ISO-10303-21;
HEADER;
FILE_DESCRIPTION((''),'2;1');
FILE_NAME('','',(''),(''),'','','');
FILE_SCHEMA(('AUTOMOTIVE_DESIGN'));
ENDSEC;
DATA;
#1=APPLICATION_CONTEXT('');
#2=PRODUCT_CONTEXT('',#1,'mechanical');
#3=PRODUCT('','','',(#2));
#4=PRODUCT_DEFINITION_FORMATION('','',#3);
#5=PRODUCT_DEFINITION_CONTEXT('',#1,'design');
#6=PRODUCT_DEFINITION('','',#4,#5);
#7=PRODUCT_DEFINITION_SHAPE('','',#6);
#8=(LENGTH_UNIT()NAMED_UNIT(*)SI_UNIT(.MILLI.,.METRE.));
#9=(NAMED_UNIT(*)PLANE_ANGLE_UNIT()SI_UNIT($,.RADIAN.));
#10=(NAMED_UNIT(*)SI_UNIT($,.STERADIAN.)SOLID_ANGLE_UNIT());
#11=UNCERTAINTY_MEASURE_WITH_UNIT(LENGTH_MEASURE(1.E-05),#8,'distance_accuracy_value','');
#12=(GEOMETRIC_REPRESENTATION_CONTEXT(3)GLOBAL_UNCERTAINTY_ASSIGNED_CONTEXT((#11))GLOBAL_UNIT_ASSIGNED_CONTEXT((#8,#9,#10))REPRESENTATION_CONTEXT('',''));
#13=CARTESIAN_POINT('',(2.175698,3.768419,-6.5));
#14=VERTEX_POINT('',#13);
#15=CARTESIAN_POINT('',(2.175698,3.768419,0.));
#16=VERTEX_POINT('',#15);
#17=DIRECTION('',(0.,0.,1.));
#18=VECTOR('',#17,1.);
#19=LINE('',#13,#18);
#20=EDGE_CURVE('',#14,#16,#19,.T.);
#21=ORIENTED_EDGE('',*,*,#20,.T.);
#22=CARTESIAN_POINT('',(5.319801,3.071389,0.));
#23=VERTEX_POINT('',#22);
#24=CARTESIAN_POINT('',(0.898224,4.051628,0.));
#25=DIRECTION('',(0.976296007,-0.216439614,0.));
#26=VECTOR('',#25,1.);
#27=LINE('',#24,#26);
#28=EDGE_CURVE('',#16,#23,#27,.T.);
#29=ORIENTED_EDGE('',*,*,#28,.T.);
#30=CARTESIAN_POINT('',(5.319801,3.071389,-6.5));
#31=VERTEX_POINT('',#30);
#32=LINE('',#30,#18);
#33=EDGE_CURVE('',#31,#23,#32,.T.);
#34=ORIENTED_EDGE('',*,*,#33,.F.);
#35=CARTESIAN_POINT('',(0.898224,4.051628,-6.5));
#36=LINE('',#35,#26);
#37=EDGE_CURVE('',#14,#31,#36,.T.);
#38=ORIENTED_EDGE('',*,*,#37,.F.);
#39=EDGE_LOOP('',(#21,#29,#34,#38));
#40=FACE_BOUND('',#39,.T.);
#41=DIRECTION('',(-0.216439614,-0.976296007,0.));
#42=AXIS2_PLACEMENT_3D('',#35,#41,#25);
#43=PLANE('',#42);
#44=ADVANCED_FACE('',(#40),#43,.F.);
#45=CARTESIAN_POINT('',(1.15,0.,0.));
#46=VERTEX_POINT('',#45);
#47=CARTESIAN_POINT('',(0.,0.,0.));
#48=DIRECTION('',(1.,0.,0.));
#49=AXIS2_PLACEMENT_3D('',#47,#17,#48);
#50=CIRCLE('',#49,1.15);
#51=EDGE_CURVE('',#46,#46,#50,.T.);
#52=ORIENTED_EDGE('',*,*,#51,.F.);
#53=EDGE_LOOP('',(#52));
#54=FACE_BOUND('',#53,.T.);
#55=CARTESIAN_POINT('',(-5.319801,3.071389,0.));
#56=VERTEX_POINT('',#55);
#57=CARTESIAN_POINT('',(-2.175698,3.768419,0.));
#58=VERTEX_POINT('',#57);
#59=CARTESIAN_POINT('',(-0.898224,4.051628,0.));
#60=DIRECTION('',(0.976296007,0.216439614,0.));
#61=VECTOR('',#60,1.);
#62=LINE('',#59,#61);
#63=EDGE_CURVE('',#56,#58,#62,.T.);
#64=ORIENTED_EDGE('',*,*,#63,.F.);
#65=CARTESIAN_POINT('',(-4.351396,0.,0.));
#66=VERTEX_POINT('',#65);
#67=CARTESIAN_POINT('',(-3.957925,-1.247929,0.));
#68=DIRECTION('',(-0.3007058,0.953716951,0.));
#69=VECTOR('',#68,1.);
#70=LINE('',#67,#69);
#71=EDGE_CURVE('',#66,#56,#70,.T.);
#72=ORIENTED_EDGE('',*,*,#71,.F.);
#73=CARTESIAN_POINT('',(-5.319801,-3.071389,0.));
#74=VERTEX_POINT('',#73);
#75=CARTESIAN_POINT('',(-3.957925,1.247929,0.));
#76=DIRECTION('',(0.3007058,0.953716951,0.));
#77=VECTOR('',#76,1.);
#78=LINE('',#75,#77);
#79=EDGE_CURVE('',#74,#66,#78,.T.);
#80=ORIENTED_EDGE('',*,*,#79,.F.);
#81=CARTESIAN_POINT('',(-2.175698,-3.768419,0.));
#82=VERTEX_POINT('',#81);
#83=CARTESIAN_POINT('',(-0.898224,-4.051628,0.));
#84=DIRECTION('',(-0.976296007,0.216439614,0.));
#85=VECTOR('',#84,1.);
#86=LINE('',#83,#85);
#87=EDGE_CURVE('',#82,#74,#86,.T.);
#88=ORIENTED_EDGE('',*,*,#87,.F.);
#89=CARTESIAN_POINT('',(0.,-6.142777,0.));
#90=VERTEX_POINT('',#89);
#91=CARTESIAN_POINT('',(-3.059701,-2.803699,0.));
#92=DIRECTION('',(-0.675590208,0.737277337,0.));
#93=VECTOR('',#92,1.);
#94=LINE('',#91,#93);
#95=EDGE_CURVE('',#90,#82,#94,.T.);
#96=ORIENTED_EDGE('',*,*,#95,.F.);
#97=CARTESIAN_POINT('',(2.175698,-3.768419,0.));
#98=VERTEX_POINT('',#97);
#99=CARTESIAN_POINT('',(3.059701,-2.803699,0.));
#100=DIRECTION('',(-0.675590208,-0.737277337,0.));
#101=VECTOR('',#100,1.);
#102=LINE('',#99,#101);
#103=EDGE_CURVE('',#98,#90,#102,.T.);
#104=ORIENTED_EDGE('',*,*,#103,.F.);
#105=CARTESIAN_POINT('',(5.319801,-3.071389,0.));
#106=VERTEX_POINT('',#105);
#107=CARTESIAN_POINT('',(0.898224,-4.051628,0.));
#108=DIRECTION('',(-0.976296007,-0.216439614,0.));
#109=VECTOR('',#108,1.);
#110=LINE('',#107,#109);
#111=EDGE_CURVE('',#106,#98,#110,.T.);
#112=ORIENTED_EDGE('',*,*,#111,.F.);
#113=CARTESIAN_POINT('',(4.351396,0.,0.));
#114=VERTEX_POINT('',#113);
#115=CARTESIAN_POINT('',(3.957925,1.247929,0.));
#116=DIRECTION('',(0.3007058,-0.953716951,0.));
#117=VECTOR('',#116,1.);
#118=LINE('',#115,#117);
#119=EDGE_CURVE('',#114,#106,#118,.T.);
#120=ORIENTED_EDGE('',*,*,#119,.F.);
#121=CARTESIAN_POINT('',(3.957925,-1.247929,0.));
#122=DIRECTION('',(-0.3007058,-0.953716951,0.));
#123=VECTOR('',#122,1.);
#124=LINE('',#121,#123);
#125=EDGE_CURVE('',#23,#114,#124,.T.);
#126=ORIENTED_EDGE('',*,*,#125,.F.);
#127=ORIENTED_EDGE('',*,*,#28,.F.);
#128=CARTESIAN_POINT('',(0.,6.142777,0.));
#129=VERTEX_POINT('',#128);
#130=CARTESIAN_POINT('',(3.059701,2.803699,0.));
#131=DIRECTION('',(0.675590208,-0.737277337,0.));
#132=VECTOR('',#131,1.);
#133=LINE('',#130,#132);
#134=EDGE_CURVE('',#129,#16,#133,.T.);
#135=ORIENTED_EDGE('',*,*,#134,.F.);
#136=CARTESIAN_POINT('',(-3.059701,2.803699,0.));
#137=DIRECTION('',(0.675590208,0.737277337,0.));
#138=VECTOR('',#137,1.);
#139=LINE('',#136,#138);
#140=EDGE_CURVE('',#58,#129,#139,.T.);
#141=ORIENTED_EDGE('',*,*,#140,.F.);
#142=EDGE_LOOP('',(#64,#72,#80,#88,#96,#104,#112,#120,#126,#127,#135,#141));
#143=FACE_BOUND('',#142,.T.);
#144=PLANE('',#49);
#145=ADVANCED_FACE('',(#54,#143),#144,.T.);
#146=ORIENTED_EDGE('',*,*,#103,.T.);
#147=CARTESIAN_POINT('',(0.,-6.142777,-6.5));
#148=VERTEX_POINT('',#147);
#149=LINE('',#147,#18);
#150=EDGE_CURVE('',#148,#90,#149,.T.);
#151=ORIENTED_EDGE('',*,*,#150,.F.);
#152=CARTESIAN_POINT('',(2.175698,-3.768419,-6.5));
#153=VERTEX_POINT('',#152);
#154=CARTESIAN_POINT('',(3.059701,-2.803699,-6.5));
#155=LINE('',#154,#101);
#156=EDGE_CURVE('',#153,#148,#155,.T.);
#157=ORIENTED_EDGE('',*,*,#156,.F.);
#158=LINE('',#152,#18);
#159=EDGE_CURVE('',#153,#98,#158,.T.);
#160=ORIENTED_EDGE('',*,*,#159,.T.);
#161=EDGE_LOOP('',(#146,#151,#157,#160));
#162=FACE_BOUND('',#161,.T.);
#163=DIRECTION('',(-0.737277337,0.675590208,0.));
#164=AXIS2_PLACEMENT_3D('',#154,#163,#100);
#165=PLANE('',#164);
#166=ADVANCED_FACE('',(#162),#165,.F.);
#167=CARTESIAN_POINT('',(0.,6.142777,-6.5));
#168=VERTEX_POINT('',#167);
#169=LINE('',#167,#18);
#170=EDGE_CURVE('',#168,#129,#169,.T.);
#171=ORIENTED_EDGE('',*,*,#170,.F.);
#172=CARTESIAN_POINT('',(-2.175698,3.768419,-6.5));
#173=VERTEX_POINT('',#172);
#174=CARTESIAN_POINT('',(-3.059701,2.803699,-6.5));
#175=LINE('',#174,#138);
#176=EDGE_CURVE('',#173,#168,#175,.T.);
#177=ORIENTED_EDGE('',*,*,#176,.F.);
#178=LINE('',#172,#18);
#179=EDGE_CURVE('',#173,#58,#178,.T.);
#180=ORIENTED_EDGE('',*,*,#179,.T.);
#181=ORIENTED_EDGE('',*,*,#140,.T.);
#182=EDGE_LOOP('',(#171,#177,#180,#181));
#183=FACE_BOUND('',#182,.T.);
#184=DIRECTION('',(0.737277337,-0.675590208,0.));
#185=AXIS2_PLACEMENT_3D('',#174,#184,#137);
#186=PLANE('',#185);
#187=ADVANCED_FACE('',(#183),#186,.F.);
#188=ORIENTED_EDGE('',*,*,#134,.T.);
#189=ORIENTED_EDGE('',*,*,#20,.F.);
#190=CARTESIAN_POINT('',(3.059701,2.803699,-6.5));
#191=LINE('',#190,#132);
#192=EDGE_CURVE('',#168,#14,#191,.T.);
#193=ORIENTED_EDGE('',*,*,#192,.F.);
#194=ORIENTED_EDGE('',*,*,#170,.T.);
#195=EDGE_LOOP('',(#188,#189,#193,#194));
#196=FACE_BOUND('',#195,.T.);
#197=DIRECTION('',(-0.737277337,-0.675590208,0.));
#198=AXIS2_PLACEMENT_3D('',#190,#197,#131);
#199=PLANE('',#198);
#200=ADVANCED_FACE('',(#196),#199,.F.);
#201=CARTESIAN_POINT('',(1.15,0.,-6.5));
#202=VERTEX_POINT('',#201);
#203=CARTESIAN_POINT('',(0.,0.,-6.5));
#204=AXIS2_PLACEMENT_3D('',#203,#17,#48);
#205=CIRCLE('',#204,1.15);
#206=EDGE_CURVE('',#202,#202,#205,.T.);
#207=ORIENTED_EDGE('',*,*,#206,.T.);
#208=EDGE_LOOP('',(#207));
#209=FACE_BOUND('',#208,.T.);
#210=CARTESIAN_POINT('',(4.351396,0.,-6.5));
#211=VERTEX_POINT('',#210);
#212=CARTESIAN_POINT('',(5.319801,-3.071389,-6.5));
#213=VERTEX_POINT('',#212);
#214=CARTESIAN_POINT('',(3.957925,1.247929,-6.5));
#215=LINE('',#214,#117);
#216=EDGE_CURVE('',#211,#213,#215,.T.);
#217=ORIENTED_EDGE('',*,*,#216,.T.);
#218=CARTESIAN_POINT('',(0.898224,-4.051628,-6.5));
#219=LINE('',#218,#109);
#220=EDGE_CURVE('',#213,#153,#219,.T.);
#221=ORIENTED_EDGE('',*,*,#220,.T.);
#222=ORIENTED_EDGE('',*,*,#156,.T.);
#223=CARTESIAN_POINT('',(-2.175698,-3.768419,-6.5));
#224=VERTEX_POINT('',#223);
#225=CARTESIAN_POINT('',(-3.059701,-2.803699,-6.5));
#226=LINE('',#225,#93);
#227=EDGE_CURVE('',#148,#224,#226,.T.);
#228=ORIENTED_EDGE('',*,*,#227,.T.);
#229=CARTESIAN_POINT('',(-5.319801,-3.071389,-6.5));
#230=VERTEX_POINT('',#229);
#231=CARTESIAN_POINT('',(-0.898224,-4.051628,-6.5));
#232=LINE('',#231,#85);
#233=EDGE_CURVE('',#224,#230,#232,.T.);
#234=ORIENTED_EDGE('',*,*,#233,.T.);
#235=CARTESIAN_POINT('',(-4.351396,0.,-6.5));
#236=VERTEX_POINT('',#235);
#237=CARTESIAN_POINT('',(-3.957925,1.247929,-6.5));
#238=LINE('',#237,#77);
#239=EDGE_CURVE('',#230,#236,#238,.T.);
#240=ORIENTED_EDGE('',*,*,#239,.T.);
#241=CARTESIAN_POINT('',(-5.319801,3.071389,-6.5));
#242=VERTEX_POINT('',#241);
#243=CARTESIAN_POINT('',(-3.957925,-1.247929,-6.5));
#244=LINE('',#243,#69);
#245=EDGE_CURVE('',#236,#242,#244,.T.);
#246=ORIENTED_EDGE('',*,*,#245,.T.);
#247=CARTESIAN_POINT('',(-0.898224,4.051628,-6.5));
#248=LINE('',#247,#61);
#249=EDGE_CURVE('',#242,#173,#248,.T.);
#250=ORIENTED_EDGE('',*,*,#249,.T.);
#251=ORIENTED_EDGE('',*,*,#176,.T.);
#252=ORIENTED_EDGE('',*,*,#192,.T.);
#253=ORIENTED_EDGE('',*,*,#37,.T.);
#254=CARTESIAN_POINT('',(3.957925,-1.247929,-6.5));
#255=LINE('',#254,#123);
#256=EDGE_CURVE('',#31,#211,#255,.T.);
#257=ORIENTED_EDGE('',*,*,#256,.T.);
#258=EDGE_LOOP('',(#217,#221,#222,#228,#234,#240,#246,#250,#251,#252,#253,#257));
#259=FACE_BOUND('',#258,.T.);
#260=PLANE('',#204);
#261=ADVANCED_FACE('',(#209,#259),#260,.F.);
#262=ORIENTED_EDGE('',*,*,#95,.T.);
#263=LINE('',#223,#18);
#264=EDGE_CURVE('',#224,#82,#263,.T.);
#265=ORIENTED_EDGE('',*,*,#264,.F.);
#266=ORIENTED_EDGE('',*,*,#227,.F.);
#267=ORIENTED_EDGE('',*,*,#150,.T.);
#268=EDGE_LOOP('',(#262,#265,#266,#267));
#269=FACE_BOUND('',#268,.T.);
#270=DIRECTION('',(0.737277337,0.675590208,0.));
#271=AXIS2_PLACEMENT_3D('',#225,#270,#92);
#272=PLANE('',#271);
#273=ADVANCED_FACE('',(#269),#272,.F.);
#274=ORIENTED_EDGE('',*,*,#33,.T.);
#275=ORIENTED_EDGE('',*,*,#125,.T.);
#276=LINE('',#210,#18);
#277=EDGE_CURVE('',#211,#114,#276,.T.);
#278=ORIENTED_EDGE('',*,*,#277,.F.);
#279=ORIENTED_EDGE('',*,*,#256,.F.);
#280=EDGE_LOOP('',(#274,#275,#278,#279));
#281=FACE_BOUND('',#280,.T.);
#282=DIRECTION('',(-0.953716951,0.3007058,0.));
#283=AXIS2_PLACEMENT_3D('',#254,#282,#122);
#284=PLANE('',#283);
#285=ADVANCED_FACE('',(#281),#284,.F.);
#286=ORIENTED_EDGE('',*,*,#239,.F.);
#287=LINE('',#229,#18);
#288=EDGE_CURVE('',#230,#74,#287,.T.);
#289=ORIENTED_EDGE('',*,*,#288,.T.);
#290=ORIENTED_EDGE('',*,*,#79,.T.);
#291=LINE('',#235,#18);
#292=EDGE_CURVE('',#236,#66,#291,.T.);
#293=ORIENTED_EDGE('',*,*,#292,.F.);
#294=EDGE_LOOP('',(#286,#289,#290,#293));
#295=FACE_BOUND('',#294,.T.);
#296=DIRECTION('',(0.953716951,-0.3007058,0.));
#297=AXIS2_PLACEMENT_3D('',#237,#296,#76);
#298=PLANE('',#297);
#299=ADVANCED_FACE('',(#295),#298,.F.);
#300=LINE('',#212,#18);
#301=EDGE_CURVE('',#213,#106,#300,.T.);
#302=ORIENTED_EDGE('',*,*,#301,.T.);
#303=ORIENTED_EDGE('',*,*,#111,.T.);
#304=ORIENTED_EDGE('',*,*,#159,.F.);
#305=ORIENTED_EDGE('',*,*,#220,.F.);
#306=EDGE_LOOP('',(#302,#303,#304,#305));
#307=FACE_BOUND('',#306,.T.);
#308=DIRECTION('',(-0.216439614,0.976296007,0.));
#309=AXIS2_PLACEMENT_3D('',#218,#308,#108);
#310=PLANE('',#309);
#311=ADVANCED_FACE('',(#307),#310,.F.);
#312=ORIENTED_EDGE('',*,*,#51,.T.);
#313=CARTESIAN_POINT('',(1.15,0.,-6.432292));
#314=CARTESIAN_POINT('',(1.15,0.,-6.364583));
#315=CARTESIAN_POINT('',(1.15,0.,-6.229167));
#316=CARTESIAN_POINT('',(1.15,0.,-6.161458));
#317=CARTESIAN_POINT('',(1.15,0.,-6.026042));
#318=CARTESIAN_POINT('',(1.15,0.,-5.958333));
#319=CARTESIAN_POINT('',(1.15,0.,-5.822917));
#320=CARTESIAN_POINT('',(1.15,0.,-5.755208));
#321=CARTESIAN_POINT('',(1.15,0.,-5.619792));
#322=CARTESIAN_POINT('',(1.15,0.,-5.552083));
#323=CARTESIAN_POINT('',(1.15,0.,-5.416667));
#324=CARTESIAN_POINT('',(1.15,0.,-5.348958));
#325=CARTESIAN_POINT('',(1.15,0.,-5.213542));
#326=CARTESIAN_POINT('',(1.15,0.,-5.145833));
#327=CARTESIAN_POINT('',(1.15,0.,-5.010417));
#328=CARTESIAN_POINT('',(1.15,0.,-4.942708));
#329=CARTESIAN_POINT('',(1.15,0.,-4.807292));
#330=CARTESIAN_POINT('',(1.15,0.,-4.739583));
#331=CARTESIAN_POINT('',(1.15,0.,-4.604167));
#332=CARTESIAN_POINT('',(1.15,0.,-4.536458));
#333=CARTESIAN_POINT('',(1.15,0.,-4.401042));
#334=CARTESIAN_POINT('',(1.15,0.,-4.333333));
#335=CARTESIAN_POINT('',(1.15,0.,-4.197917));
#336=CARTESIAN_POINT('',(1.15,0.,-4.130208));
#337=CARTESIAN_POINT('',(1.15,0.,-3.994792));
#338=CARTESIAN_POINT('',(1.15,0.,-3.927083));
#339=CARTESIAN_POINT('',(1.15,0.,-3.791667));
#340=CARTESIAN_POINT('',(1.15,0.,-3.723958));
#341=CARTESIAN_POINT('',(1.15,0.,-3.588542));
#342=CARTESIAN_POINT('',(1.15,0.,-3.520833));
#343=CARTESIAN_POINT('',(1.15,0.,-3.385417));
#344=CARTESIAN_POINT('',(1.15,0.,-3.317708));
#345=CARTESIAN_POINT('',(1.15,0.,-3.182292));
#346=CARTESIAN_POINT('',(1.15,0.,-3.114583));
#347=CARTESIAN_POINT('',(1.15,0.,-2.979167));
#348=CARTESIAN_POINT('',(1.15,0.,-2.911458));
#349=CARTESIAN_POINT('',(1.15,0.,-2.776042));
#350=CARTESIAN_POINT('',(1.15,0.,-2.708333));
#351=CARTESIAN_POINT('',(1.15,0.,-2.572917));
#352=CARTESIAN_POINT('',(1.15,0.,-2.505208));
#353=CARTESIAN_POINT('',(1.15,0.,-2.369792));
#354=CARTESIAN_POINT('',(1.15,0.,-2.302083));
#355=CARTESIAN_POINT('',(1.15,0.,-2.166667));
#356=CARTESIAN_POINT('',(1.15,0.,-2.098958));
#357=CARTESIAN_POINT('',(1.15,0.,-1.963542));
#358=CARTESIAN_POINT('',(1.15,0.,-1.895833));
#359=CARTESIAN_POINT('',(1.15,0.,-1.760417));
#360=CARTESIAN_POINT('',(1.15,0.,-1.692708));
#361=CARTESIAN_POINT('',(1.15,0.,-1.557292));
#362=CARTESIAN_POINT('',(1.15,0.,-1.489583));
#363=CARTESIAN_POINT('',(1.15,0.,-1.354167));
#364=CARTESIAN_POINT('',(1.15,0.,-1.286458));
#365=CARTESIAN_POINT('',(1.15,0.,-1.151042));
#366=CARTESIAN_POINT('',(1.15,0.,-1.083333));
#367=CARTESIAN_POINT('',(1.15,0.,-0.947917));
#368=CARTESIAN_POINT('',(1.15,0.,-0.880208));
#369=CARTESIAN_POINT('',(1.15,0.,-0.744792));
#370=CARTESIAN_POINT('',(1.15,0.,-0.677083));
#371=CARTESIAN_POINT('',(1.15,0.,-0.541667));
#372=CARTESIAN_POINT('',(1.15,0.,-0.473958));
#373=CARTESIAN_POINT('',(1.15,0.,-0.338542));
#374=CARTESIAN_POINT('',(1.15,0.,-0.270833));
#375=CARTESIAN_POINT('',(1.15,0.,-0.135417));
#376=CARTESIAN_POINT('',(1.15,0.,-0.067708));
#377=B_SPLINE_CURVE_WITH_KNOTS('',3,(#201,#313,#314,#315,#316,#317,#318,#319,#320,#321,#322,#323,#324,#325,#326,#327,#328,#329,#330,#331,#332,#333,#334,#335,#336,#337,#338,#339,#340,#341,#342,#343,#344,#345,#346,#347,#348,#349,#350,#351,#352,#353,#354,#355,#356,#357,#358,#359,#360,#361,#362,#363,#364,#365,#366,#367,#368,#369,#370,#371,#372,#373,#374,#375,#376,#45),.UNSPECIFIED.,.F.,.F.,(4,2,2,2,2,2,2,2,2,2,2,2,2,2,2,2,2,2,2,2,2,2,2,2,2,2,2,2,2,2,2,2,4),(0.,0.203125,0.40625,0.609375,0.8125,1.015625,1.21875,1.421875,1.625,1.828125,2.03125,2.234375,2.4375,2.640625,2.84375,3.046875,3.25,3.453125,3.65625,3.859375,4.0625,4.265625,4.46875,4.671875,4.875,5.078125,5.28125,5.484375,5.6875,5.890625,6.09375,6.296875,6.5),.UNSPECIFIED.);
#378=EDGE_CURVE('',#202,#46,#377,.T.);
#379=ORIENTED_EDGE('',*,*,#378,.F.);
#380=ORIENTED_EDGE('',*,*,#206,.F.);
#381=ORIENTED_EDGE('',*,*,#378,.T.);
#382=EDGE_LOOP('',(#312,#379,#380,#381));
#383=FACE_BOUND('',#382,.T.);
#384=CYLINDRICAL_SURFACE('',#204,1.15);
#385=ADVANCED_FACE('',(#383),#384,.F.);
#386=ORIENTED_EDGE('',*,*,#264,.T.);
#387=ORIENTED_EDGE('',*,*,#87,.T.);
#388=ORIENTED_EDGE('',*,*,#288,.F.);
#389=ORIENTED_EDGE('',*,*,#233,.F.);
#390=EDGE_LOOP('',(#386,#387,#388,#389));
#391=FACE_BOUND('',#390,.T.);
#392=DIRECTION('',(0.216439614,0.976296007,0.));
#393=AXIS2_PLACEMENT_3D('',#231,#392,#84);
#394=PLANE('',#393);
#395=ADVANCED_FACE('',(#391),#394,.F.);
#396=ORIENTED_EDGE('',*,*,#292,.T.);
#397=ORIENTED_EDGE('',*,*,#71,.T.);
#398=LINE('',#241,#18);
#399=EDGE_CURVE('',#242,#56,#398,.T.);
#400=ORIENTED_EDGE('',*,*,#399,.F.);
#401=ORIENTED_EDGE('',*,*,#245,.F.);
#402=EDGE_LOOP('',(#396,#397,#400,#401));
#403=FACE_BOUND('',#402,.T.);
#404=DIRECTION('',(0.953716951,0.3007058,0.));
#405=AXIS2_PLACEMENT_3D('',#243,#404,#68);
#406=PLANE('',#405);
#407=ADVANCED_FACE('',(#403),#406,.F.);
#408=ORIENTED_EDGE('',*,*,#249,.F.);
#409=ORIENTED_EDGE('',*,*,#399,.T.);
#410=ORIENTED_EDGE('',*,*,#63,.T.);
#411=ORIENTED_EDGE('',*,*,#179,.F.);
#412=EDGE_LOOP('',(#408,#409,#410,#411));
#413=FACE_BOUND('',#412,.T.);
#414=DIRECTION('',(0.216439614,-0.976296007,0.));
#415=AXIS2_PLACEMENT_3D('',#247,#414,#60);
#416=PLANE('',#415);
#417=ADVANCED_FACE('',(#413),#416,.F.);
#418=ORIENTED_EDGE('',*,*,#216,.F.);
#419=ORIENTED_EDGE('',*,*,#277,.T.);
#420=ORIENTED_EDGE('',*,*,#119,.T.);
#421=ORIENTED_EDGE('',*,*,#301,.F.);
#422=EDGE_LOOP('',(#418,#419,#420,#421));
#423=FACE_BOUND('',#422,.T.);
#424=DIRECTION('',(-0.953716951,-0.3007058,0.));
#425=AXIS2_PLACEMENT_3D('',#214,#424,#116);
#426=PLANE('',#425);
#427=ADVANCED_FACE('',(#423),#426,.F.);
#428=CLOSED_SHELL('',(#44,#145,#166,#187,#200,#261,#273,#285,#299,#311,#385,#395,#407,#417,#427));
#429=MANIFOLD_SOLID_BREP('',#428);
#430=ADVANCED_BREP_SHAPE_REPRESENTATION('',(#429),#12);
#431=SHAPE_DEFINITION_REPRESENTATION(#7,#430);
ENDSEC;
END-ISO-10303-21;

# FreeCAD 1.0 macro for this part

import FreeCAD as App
import Part
import Sketcher

V = App.Vector
Q = App.Units.Quantity


def add_polygon(sketch, points):
    """Adds a closed chain of lines whose ends are joined by coincident constraints."""
    first, n = sketch.GeometryCount, len(points)
    for a, b in zip(points, points[1:] + points[:1]):
        sketch.addGeometry(Part.LineSegment(App.Vector(*a, 0), App.Vector(*b, 0)), False)
    for i in range(n):
        sketch.addConstraint(Sketcher.Constraint("Coincident", first + i, 2, first + (i + 1) % n, 1))

doc = App.newDocument("Part")
body = doc.addObject("PartDesign::Body", "Body")

# Sketch on XY plane
sketch1 = body.newObject("Sketcher::SketchObject", "Sketch")
sketch1.AttachmentSupport = (doc.getObject("XY_Plane"), [""])
sketch1.MapMode = "FlatFace"
add_polygon(sketch1, [(0, -6.1), (2.2, -3.8), (5.3, -3.1), (4.4, 0), (5.3, 3.1), (2.2, 3.8), (0, 6.1), (-2.2, 3.8), (-5.3, 3.1), (-4.4, 0), (-5.3, -3.1), (-2.2, -3.8)])  # lines 0-11
sketch1.addGeometry(Part.Circle(V(0, 0, 0), V(0, 0, 1), 1.1), False)  # 12
sketch1.addConstraint([
    Sketcher.Constraint("Coincident", 12, 3, -1, 1),
    Sketcher.Constraint("Symmetric", 0, 2, 6, 2, -1, 1),
    Sketcher.Constraint("Symmetric", 1, 2, 7, 2, -1, 1),
    Sketcher.Constraint("Symmetric", 2, 2, 8, 2, -1, 1),
    Sketcher.Constraint("Symmetric", 3, 2, 9, 2, -1, 1),
    Sketcher.Constraint("Symmetric", 4, 2, 10, 2, -1, 1),
    Sketcher.Constraint("Symmetric", 5, 2, 11, 2, -1, 1),
    Sketcher.Constraint("Symmetric", 4, 2, 6, 2, -2),
    Sketcher.Constraint("Symmetric", 3, 2, 7, 2, -2),
    Sketcher.Constraint("PointOnObject", 2, 2, -1),
    Sketcher.Constraint("PointOnObject", 5, 2, -2),
    Sketcher.Constraint("Equal", 0, 1),
    Sketcher.Constraint("Equal", 1, 2),
    Sketcher.Constraint("Diameter", 12, 2.3),
    Sketcher.Constraint("Angle", 0, Q("47.5 deg")),
    Sketcher.Constraint("Angle", 1, Q("12.5 deg")),
    Sketcher.Constraint("Angle", 2, Q("107.5 deg")),
    Sketcher.Constraint("DistanceX", -1, 1, 1, 2, 5.319801),
])
pad1 = body.newObject("PartDesign::Pad", "Pad")
pad1.Profile = sketch1
pad1.Length = 6.5
pad1.Reversed = True

doc.recompute()
